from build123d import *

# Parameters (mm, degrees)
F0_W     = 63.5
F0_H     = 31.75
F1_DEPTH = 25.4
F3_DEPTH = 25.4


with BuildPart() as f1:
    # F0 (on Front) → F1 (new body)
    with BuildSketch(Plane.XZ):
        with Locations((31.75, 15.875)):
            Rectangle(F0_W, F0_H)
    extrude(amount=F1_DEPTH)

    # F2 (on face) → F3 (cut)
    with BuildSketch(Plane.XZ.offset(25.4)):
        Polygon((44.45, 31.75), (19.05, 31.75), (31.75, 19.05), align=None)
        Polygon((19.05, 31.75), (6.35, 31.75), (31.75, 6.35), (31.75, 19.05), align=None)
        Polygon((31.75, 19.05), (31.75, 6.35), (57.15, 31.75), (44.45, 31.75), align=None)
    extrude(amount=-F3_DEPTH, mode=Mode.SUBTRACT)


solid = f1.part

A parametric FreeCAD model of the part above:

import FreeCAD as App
import Part
import Sketcher

V = App.Vector
Q = App.Units.Quantity

doc = App.newDocument("Part")
params = doc.addObject("Spreadsheet::Sheet", "Params")
for row, (alias, value) in enumerate([
    ("sketch1_width", "2.5 in"),
    ("sketch1_height", "1.25 in"),
    ("pad1_length", "1 in"),
    ("sketch2_width", "2 in"),
    ("pocket1_length", "1 in"),
], start=1):
    params.set(f"A{row}", alias)
    params.set(f"B{row}", "=" + value)
    params.setAlias(f"B{row}", alias)

body = doc.addObject("PartDesign::Body", "Body")

sketch1 = body.newObject("Sketcher::SketchObject", "Sketch")
sketch1.AttachmentSupport = (doc.getObject("XZ_Plane"), [""])
sketch1.MapMode = "FlatFace"
sketch1.addGeometry([
    Part.LineSegment(V(0, 32, 0), V(0, 0, 0)),
    Part.LineSegment(V(0, 0, 0), V(64, 0, 0)),
    Part.LineSegment(V(64, 0, 0), V(64, 32, 0)),
    Part.LineSegment(V(64, 32, 0), V(0, 32, 0)),
], False)
sketch1.addConstraint([
    Sketcher.Constraint("Coincident", 0, 2, 1, 1),
    Sketcher.Constraint("Coincident", 1, 2, 2, 1),
    Sketcher.Constraint("Coincident", 2, 2, 3, 1),
    Sketcher.Constraint("Coincident", 3, 2, 0, 1),
    Sketcher.Constraint("Vertical", 0),
    Sketcher.Constraint("Horizontal", 1),
    Sketcher.Constraint("Vertical", 2),
    Sketcher.Constraint("Horizontal", 3),
    Sketcher.Constraint("Coincident", 0, 2, -1, 1),
    Sketcher.Constraint("DistanceX", 1, 1, 1, 2, Q("2.5 in")),
    Sketcher.Constraint("DistanceY", 0, 2, 0, 1, Q("1.25 in")),
])
sketch1.setExpression("Constraints[9]", "Params.sketch1_width")
sketch1.setExpression("Constraints[10]", "Params.sketch1_height")
pad1 = body.newObject("PartDesign::Pad", "Pad")
pad1.Profile = sketch1
pad1.setExpression("Length", "Params.pad1_length")

sketch2 = body.newObject("Sketcher::SketchObject", "Sketch001")
sketch2.AttachmentSupport = (doc.getObject("XZ_Plane"), [""])
sketch2.MapMode = "FlatFace"
sketch2.AttachmentOffset = App.Placement(V(0, 0, 1 * 25.4), App.Rotation())
sketch2.addGeometry([
    Part.LineSegment(V(6, 32, 0), V(32, 6, 0)),
    Part.LineSegment(V(32, 6, 0), V(57, 32, 0)),
    Part.LineSegment(V(57, 32, 0), V(6, 32, 0)),
], False)
sketch2.addConstraint([
    Sketcher.Constraint("Coincident", 0, 2, 1, 1),
    Sketcher.Constraint("Coincident", 1, 2, 2, 1),
    Sketcher.Constraint("Coincident", 2, 2, 0, 1),
    Sketcher.Constraint("Horizontal", 2),
    Sketcher.Constraint("Perpendicular", 0, 1),
    Sketcher.Constraint("Equal", 0, 1),
    Sketcher.Constraint("DistanceX", 2, 2, 2, 1, Q("2 in")),
    Sketcher.Constraint("DistanceX", -1, 1, 0, 2, Q("1.25 in")),
    Sketcher.Constraint("DistanceY", -1, 1, 0, 2, Q("0.25 in")),
])
sketch2.setExpression("Constraints[6]", "Params.sketch2_width")
pocket1 = body.newObject("PartDesign::Pocket", "Pocket")
pocket1.Profile = sketch2
pocket1.setExpression("Length", "Params.pocket1_length")

doc.recompute()
